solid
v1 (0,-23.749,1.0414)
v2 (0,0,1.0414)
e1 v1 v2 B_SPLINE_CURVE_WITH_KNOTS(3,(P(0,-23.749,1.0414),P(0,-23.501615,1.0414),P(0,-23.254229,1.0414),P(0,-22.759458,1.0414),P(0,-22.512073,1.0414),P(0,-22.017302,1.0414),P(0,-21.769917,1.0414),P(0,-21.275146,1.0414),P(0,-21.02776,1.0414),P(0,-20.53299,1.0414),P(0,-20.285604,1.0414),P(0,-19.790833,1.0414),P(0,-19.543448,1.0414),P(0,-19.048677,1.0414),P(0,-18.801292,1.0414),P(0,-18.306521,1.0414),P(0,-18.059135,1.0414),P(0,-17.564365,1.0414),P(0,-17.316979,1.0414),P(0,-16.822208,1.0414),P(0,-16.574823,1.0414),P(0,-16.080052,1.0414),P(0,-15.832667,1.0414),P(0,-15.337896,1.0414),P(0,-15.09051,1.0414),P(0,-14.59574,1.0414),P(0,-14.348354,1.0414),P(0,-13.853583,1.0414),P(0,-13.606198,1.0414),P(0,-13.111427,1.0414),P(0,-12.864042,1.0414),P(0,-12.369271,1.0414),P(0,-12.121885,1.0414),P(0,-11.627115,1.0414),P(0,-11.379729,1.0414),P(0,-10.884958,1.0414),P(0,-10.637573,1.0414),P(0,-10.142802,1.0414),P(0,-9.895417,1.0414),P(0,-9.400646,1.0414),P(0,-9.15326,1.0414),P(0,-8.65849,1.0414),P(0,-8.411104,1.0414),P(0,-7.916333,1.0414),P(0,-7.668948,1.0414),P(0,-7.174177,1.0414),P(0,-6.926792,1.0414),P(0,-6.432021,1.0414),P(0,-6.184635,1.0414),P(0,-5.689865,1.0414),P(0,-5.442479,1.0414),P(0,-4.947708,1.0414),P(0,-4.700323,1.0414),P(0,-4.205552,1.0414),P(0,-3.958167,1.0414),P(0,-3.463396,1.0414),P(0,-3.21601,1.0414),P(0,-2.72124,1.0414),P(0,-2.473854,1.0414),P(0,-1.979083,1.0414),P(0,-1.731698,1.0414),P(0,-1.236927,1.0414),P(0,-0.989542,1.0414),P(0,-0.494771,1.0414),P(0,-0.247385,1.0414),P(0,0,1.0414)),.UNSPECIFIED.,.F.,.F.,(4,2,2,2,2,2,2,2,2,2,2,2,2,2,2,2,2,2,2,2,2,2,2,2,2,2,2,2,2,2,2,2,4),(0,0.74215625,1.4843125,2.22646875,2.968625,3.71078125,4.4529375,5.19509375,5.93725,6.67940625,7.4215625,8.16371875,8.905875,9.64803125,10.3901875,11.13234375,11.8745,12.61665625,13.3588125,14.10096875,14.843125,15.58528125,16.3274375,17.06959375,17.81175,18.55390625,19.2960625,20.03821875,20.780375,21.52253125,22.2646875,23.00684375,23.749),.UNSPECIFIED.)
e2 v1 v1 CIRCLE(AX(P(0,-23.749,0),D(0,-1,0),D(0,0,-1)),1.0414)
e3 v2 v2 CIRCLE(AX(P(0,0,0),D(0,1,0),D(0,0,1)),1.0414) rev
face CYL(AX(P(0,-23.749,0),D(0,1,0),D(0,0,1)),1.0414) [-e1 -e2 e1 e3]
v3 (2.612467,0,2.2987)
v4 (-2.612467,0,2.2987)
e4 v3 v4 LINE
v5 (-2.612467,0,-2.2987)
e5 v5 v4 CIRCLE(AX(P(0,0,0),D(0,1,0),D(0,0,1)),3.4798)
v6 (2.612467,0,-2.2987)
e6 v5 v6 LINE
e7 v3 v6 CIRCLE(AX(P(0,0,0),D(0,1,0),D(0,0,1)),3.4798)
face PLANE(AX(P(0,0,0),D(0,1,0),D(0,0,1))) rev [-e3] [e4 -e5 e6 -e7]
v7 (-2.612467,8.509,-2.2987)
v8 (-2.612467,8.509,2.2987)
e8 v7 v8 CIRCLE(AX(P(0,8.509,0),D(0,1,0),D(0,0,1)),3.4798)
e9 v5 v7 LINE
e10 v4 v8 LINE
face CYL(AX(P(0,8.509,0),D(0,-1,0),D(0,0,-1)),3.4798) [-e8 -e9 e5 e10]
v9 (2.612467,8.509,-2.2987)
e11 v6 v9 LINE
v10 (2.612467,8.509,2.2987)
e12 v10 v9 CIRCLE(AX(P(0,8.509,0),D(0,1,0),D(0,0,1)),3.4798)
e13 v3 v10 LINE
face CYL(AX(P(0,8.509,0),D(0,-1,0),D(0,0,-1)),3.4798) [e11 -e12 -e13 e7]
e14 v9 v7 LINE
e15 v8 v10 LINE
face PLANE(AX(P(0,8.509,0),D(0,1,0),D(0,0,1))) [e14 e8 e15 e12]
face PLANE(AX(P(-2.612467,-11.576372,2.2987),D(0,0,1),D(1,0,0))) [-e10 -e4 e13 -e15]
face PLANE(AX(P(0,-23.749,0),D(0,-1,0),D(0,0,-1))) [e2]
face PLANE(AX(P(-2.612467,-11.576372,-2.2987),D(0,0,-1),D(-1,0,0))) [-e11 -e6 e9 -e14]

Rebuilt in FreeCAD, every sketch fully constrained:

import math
import FreeCAD as App
import Part
import Sketcher
Q = App.Units.Quantity


def add_polygon(sketch, points):
    """Adds a closed chain of lines whose ends are joined by coincident constraints."""
    first, n = sketch.GeometryCount, len(points)
    for a, b in zip(points, points[1:] + points[:1]):
        sketch.addGeometry(Part.LineSegment(App.Vector(*a, 0), App.Vector(*b, 0)), False)
    for i in range(n):
        sketch.addConstraint(Sketcher.Constraint("Coincident", first + i, 2, first + (i + 1) % n, 1))

doc = App.newDocument("Part")
body = doc.addObject("PartDesign::Body", "Body")

# Sketch on XZ plane
sketch1 = doc.addObject("Sketcher::SketchObject", "Sketch")
body.addObject(sketch1)
sketch1.AttachmentSupport = (doc.XZ_Plane, [""])
sketch1.MapMode = "FlatFace"
sketch1.addGeometry(Part.Circle(App.Vector(0, 0, 0), App.Vector(0, 0, 1), 3.4798), False)
sketch1.addConstraint([
    Sketcher.Constraint("Coincident", 0, 3, -1, 1),
    Sketcher.Constraint("Diameter", 0, Q("0.274 in")),
])
pad1 = doc.addObject("PartDesign::Pad", "Pad")
body.addObject(pad1)
pad1.Profile = sketch1
pad1.Length = Q("0.335 in")
pad1.Reversed = True

# Sketch on XZ plane
sketch2 = doc.addObject("Sketcher::SketchObject", "Sketch001")
body.addObject(sketch2)
sketch2.AttachmentSupport = (doc.XZ_Plane, [""])
sketch2.MapMode = "FlatFace"
sketch2.addGeometry(Part.Circle(App.Vector(0, 0, 0), App.Vector(0, 0, 1), 1.0414), False)
sketch2.addConstraint([
    Sketcher.Constraint("Coincident", 0, 3, -1, 1),
    Sketcher.Constraint("Diameter", 0, Q("0.082 in")),
])
pad2 = doc.addObject("PartDesign::Pad", "Pad001")
body.addObject(pad2)
pad2.Profile = sketch2
pad2.Length = Q("0.935 in")

# Sketch on XZ plane
sketch3 = doc.addObject("Sketcher::SketchObject", "Sketch002")
body.addObject(sketch3)
sketch3.AttachmentSupport = (doc.XZ_Plane, [""])
sketch3.MapMode = "FlatFace"
sketch3.AttachmentOffset = App.Placement(App.Vector(0, 0, -0.335 * 25.4), App.Rotation())
add_polygon(sketch3, [(-7.853, -7.853), (-7.853, 7.853), (7.853, 7.853), (7.853, -7.853)])  # lines 0-3
sketch3.addGeometry(Part.ArcOfCircle(Part.Circle(App.Vector(0, 0, 0), App.Vector(0, 0, 1), 3.4798), math.radians(138.655577), math.radians(221.344423)), False)  # 4
sketch3.addGeometry(Part.LineSegment(App.Vector(-2.612467, -2.2987, 0), App.Vector(2.612467, -2.2987, 0)), False)  # 5
sketch3.addGeometry(Part.ArcOfCircle(Part.Circle(App.Vector(0, 0, 0), App.Vector(0, 0, 1), 3.4798), math.radians(-41.344423), math.radians(41.344423)), False)  # 6
sketch3.addGeometry(Part.LineSegment(App.Vector(2.612467, 2.2987, 0), App.Vector(-2.612467, 2.2987, 0)), False)  # 7
sketch3.addConstraint([
    Sketcher.Constraint("Coincident", 4, 2, 5, 1),
    Sketcher.Constraint("Coincident", 5, 2, 6, 1),
    Sketcher.Constraint("Coincident", 6, 2, 7, 1),
    Sketcher.Constraint("Coincident", 7, 2, 4, 1),
    Sketcher.Constraint("Vertical", 0),
    Sketcher.Constraint("Horizontal", 1),
    Sketcher.Constraint("Vertical", 2),
    Sketcher.Constraint("Horizontal", 3),
    Sketcher.Constraint("Horizontal", 5),
    Sketcher.Constraint("Horizontal", 7),
    Sketcher.Constraint("Coincident", 4, 3, -1, 1),
    Sketcher.Constraint("Coincident", 6, 3, -1, 1),
    Sketcher.Constraint("Equal", 4, 6),
    Sketcher.Constraint("Symmetric", 0, 2, 2, 2, -1, 1),
    Sketcher.Constraint("Vertical", 5, 2, 6, 2),
    Sketcher.Constraint("Equal", 3, 0),
    Sketcher.Constraint("Radius", 4, Q("0.137 in")),
    Sketcher.Constraint("DistanceY", 5, 2, 6, 2, Q("0.181 in")),
    Sketcher.Constraint("DistanceX", 1, 1, 1, 2, Q("15.706 mm")),
])
pocket1 = doc.addObject("PartDesign::Pocket", "Pocket")
body.addObject(pocket1)
pocket1.Profile = sketch3
pocket1.Length = Q("0.335 in")
pocket1.Reversed = True

doc.recompute()
